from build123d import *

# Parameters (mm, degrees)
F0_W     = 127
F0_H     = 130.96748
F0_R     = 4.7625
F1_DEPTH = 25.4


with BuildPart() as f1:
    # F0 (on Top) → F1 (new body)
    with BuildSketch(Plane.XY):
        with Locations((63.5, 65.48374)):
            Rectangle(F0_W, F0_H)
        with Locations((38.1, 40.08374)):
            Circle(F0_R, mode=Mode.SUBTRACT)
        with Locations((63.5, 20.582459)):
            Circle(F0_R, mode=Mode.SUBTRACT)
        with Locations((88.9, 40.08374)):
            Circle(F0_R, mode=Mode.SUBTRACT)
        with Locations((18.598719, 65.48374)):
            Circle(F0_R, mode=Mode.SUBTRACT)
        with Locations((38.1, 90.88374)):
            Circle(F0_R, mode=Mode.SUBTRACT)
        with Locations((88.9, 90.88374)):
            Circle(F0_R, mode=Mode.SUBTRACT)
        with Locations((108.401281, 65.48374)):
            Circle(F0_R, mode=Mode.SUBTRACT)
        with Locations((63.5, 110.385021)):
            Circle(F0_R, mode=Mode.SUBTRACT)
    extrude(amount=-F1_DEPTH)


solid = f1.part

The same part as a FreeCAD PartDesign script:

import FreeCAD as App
import Part
import Sketcher
Q = App.Units.Quantity


def add_polygon(sketch, points):
    """Adds a closed chain of lines whose ends are joined by coincident constraints."""
    first, n = sketch.GeometryCount, len(points)
    for a, b in zip(points, points[1:] + points[:1]):
        sketch.addGeometry(Part.LineSegment(App.Vector(*a, 0), App.Vector(*b, 0)), False)
    for i in range(n):
        sketch.addConstraint(Sketcher.Constraint("Coincident", first + i, 2, first + (i + 1) % n, 1))

doc = App.newDocument("Part")
body = doc.addObject("PartDesign::Body", "Body")

# Sketch on XY plane
sketch1 = body.newObject("Sketcher::SketchObject", "Sketch")
sketch1.AttachmentSupport = (doc.getObject("XY_Plane"), [""])
sketch1.MapMode = "FlatFace"
add_polygon(sketch1, [(0, 131), (0, 0), (127, 0), (127, 131)])  # lines 0-3
sketch1.addGeometry(Part.Circle(App.Vector(38.1, 40.1, 0), App.Vector(0, 0, 1), 4.8), False)  # 4
sketch1.addGeometry(Part.Circle(App.Vector(63.5, 20.6, 0), App.Vector(0, 0, 1), 4.8), False)  # 5
sketch1.addGeometry(Part.Circle(App.Vector(88.9, 40.1, 0), App.Vector(0, 0, 1), 4.8), False)  # 6
sketch1.addGeometry(Part.Circle(App.Vector(18.6, 65.5, 0), App.Vector(0, 0, 1), 4.8), False)  # 7
sketch1.addGeometry(Part.Circle(App.Vector(38.1, 90.9, 0), App.Vector(0, 0, 1), 4.8), False)  # 8
sketch1.addGeometry(Part.Circle(App.Vector(108.4, 65.5, 0), App.Vector(0, 0, 1), 4.8), False)  # 9
sketch1.addGeometry(Part.Circle(App.Vector(63.5, 110.4, 0), App.Vector(0, 0, 1), 4.8), False)  # 10
sketch1.addGeometry(Part.Circle(App.Vector(88.9, 90.9, 0), App.Vector(0, 0, 1), 4.8), False)  # 11
sketch1.addConstraint(Sketcher.Constraint("Vertical", 0))
sketch1.addConstraint(Sketcher.Constraint("Horizontal", 1))
sketch1.addConstraint(Sketcher.Constraint("Vertical", 2))
sketch1.addConstraint(Sketcher.Constraint("Horizontal", 3))
sketch1.addConstraint(Sketcher.Constraint("Coincident", 0, 2, -1, 1))
sketch1.addConstraint(Sketcher.Constraint("Equal", 4, 5))
sketch1.addConstraint(Sketcher.Constraint("Equal", 5, 6))
sketch1.addConstraint(Sketcher.Constraint("Equal", 6, 7))
sketch1.addConstraint(Sketcher.Constraint("Equal", 7, 8))
sketch1.addConstraint(Sketcher.Constraint("Equal", 8, 9))
sketch1.addConstraint(Sketcher.Constraint("Equal", 9, 10))
sketch1.addConstraint(Sketcher.Constraint("Equal", 10, 11))
sketch1.addConstraint(Sketcher.Constraint("Horizontal", 4, 3, 6, 3))
sketch1.addConstraint(Sketcher.Constraint("Horizontal", 7, 3, 9, 3))
sketch1.addConstraint(Sketcher.Constraint("Horizontal", 8, 3, 11, 3))
sketch1.addConstraint(Sketcher.Constraint("Vertical", 4, 3, 8, 3))
sketch1.addConstraint(Sketcher.Constraint("Vertical", 5, 3, 10, 3))
sketch1.addConstraint(Sketcher.Constraint("Vertical", 6, 3, 11, 3))
sketch1.addConstraint(Sketcher.Constraint("DistanceX", 1, 1, 1, 2, Q("5 in")))
sketch1.addConstraint(Sketcher.Constraint("Diameter", 4, Q("0.375 in")))
sketch1.addConstraint(Sketcher.Constraint("DistanceX", 4, 3, 5, 3, Q("1 in")))
sketch1.addConstraint(Sketcher.Constraint("DistanceX", 5, 3, 6, 3, Q("1 in")))
sketch1.addConstraint(Sketcher.Constraint("DistanceY", 4, 3, 7, 3, Q("1 in")))
sketch1.addConstraint(Sketcher.Constraint("DistanceY", 7, 3, 8, 3, Q("1 in")))
sketch1.addConstraint(Sketcher.Constraint("DistanceX", -1, 1, 4, 3, Q("1.5 in")))
sketch1.addConstraint(Sketcher.Constraint("DistanceY", 0, 2, 0, 1, Q("5.1562 in")))
sketch1.addConstraint(Sketcher.Constraint("DistanceY", -1, 1, 4, 3, Q("1.5781 in")))
sketch1.addConstraint(Sketcher.Constraint("DistanceY", -1, 1, 5, 3, Q("20.582459 mm")))
sketch1.addConstraint(Sketcher.Constraint("DistanceX", -1, 1, 7, 3, Q("18.598719 mm")))
sketch1.addConstraint(Sketcher.Constraint("DistanceX", -1, 1, 9, 3, Q("108.401281 mm")))
sketch1.addConstraint(Sketcher.Constraint("DistanceY", -1, 1, 10, 3, Q("110.385021 mm")))
pad1 = body.newObject("PartDesign::Pad", "Pad")
pad1.Profile = sketch1
pad1.Length = Q("1 in")
pad1.Reversed = True

doc.recompute()
